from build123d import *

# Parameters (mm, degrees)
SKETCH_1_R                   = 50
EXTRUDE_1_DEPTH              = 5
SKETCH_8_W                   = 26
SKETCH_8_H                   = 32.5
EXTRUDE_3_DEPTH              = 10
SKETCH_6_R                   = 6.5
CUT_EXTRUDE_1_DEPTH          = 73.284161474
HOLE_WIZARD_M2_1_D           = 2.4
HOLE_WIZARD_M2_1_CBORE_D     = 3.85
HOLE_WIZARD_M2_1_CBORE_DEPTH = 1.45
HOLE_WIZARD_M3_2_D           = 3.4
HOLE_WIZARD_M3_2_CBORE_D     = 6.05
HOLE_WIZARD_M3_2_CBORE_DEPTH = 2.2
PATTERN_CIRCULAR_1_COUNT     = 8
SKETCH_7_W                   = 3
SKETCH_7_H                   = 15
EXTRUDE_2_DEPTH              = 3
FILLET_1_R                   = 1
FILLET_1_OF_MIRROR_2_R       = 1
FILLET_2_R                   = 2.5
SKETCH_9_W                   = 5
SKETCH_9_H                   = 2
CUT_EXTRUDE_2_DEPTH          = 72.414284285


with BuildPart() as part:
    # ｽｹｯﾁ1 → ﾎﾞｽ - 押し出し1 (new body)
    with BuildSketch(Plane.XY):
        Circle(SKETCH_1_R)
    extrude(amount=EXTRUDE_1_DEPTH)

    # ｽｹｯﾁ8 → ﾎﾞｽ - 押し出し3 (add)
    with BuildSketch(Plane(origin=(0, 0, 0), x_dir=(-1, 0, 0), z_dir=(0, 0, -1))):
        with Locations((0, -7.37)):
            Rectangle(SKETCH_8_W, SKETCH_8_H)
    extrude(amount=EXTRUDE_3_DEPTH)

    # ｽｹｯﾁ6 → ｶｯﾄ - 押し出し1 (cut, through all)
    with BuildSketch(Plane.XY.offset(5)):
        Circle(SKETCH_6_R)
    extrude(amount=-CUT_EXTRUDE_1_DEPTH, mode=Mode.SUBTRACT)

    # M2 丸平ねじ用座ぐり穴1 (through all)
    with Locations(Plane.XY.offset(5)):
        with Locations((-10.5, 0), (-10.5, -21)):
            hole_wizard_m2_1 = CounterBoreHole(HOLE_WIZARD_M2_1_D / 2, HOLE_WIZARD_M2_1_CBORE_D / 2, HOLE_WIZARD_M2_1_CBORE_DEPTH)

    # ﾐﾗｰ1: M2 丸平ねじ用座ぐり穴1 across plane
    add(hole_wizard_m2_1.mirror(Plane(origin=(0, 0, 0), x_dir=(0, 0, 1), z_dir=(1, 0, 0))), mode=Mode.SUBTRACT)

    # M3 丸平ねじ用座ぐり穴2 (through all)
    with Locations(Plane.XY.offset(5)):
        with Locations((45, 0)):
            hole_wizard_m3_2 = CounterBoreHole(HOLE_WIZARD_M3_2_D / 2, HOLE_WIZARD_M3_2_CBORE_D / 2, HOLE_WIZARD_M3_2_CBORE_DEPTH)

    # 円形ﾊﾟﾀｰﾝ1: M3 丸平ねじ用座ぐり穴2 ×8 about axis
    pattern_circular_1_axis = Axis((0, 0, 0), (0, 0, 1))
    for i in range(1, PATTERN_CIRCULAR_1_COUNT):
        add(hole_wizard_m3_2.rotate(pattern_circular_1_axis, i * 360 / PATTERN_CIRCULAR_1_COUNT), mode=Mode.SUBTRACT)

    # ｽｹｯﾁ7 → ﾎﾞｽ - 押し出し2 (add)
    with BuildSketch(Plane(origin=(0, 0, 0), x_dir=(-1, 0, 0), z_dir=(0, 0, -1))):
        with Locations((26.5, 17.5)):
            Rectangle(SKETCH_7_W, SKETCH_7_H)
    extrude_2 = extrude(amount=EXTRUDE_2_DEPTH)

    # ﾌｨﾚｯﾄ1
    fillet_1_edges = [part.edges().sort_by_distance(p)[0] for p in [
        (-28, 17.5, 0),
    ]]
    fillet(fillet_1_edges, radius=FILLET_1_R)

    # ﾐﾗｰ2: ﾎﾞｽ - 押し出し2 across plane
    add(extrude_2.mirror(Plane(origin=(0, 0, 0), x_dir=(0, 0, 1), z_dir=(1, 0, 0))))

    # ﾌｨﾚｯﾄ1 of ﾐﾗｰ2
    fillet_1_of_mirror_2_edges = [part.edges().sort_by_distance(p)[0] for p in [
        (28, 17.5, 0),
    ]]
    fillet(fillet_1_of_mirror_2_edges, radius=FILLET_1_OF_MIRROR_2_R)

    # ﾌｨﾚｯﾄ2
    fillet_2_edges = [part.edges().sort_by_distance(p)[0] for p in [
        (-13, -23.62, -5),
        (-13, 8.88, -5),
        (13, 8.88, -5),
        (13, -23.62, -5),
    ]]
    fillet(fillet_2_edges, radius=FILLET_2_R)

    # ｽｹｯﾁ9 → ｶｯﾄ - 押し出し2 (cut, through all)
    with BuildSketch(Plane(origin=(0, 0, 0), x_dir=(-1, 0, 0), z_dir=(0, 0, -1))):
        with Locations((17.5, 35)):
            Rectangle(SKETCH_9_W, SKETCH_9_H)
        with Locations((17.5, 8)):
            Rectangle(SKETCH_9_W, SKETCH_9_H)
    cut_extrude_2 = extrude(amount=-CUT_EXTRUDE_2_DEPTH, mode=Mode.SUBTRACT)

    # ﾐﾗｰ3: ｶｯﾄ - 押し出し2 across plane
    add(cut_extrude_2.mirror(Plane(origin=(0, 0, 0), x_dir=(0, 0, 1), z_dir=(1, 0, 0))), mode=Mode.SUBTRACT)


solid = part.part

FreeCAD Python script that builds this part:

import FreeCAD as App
import Part
import Sketcher

V = App.Vector
Q = App.Units.Quantity


def edges_at(feature, points):
    """Names of the edges that pass closest to the given points."""
    edges = feature.Shape.Edges
    near = lambda p: min(range(len(edges)), key=lambda i: edges[i].distToShape(Part.Vertex(*p))[0])
    return sorted({f"Edge{near(p) + 1}" for p in points})


def add_polygon(sketch, points):
    """Adds a closed chain of lines whose ends are joined by coincident constraints."""
    first, n = sketch.GeometryCount, len(points)
    for a, b in zip(points, points[1:] + points[:1]):
        sketch.addGeometry(Part.LineSegment(App.Vector(*a, 0), App.Vector(*b, 0)), False)
    for i in range(n):
        sketch.addConstraint(Sketcher.Constraint("Coincident", first + i, 2, first + (i + 1) % n, 1))

doc = App.newDocument("Part")
body = doc.addObject("PartDesign::Body", "Body")

# Sketch on XY plane
sketch1 = doc.addObject("Sketcher::SketchObject", "Sketch")
body.addObject(sketch1)
sketch1.AttachmentSupport = (doc.XY_Plane, [""])
sketch1.MapMode = "FlatFace"
sketch1.addGeometry(Part.Circle(V(0, 0, 0), V(0, 0, 1), 50), False)
sketch1.addConstraint([
    Sketcher.Constraint("Coincident", 0, 3, -1, 1),
    Sketcher.Constraint("Diameter", 0, Q("100 mm")),
])
pad1 = doc.addObject("PartDesign::Pad", "Pad")
body.addObject(pad1)
pad1.Profile = sketch1
pad1.Length = 5

# Sketch on XY plane
sketch2 = doc.addObject("Sketcher::SketchObject", "Sketch001")
body.addObject(sketch2)
sketch2.AttachmentSupport = (doc.XY_Plane, [""])
sketch2.MapMode = "FlatFace"
add_polygon(sketch2, [(13, 9), (13, -24), (-13, -24), (-13, 9)])  # lines 0-3
sketch2.addConstraint([
    Sketcher.Constraint("Vertical", 0),
    Sketcher.Constraint("Horizontal", 1),
    Sketcher.Constraint("Vertical", 2),
    Sketcher.Constraint("Horizontal", 3),
    Sketcher.Constraint("DistanceX", 1, 2, 1, 1, Q("26 mm")),
    Sketcher.Constraint("DistanceY", 0, 2, 0, 1, Q("32.5 mm")),
    Sketcher.Constraint("DistanceX", -1, 1, 0, 2, Q("13 mm")),
    Sketcher.Constraint("DistanceY", 0, 2, -1, 1, Q("23.62 mm")),
])
pad2 = doc.addObject("PartDesign::Pad", "Pad001")
body.addObject(pad2)
pad2.Profile = sketch2
pad2.Length = 10
pad2.Reversed = True

# Sketch on XY plane
sketch3 = doc.addObject("Sketcher::SketchObject", "Sketch002")
body.addObject(sketch3)
sketch3.AttachmentSupport = (doc.XY_Plane, [""])
sketch3.MapMode = "FlatFace"
sketch3.AttachmentOffset = App.Placement(V(0, 0, 5), App.Rotation())
sketch3.addGeometry(Part.Circle(V(0, 0, 0), V(0, 0, 1), 6), False)
sketch3.addConstraint([
    Sketcher.Constraint("Coincident", 0, 3, -1, 1),
    Sketcher.Constraint("Diameter", 0, Q("13 mm")),
])
pocket1 = doc.addObject("PartDesign::Pocket", "Pocket")
body.addObject(pocket1)
pocket1.Profile = sketch3
pocket1.Type = "ThroughAll"

# Sketch on XY plane
sketch4 = doc.addObject("Sketcher::SketchObject", "Sketch003")
body.addObject(sketch4)
sketch4.AttachmentSupport = (doc.XY_Plane, [""])
sketch4.MapMode = "FlatFace"
sketch4.AttachmentOffset = App.Placement(V(0, 0, 5), App.Rotation())
sketch4.addGeometry([
    Part.Circle(V(-10.5, 0, 0), V(0, 0, 1), 1.2),
    Part.Circle(V(-10.5, -21, 0), V(0, 0, 1), 1.2),
], False)
sketch4.addConstraint([
    Sketcher.Constraint("Equal", 0, 1),
    Sketcher.Constraint("PointOnObject", 0, 3, -1),
    Sketcher.Constraint("Vertical", 0, 3, 1, 3),
    Sketcher.Constraint("Diameter", 0, Q("2.4 mm")),
    Sketcher.Constraint("DistanceY", 1, 3, -1, 1, Q("21 mm")),
    Sketcher.Constraint("DistanceX", 0, 3, -1, 1, Q("10.5 mm")),
])
doc.recompute()
hole = doc.addObject("PartDesign::Hole", "Hole")
body.addObject(hole)
hole.Profile = sketch4
hole.ThreadType = "None"
hole.Diameter = 2.4
hole.DepthType = "ThroughAll"
hole.HoleCutType = "Counterbore"
hole.HoleCutDiameter = 3.85
hole.HoleCutDepth = 1.45
doc.recompute()

mirrored = doc.addObject("PartDesign::Mirrored", "Mirrored")
body.addObject(mirrored)
mirrored.Originals = [hole]
mirrored.MirrorPlane = (doc.YZ_Plane, [""])
body.Tip = mirrored

# Sketch on XY plane
sketch5 = doc.addObject("Sketcher::SketchObject", "Sketch004")
body.addObject(sketch5)
sketch5.AttachmentSupport = (doc.XY_Plane, [""])
sketch5.MapMode = "FlatFace"
sketch5.AttachmentOffset = App.Placement(V(0, 0, 5), App.Rotation())
sketch5.addGeometry(Part.Circle(V(45, 0, 0), V(0, 0, 1), 1.7), False)
sketch5.addConstraint([
    Sketcher.Constraint("PointOnObject", 0, 3, -1),
    Sketcher.Constraint("Diameter", 0, Q("3.4 mm")),
    Sketcher.Constraint("DistanceX", -1, 1, 0, 3, Q("45 mm")),
])
doc.recompute()
hole2 = doc.addObject("PartDesign::Hole", "Hole001")
body.addObject(hole2)
hole2.Profile = sketch5
hole2.ThreadType = "None"
hole2.Diameter = 3.4
hole2.DepthType = "ThroughAll"
hole2.HoleCutType = "Counterbore"
hole2.HoleCutDiameter = 6.05
hole2.HoleCutDepth = 2.2
doc.recompute()

polarpattern = doc.addObject("PartDesign::PolarPattern", "PolarPattern")
body.addObject(polarpattern)
polarpattern.Originals = [hole2]
polarpattern.Axis = (doc.Z_Axis, [""])
polarpattern.Angle = 360
polarpattern.Occurrences = 8
body.Tip = polarpattern

# Sketch on XY plane
sketch6 = doc.addObject("Sketcher::SketchObject", "Sketch005")
body.addObject(sketch6)
sketch6.AttachmentSupport = (doc.XY_Plane, [""])
sketch6.MapMode = "FlatFace"
add_polygon(sketch6, [(-25, 25), (-25, 10), (-28, 10), (-28, 25)])  # lines 0-3
sketch6.addConstraint([
    Sketcher.Constraint("Vertical", 0),
    Sketcher.Constraint("Horizontal", 1),
    Sketcher.Constraint("Vertical", 2),
    Sketcher.Constraint("Horizontal", 3),
    Sketcher.Constraint("DistanceX", 1, 2, 1, 1, Q("3 mm")),
    Sketcher.Constraint("DistanceY", 0, 2, 0, 1, Q("15 mm")),
    Sketcher.Constraint("DistanceX", 0, 2, -1, 1, Q("25 mm")),
    Sketcher.Constraint("DistanceY", -1, 1, 0, 2, Q("10 mm")),
])
pad3 = doc.addObject("PartDesign::Pad", "Pad002")
body.addObject(pad3)
pad3.Profile = sketch6
pad3.Length = 3
pad3.Reversed = True
doc.recompute()

fillet = doc.addObject("PartDesign::Fillet", "Fillet")
body.addObject(fillet)
fillet.Base = (pad3, edges_at(pad3, [(-28, 17.5, 0)]))
fillet.Radius = 1
doc.recompute()

mirrored2 = doc.addObject("PartDesign::Mirrored", "Mirrored001")
body.addObject(mirrored2)
mirrored2.Originals = [pad3]
mirrored2.MirrorPlane = (doc.YZ_Plane, [""])
body.Tip = mirrored2
doc.recompute()

fillet2 = doc.addObject("PartDesign::Fillet", "Fillet001")
body.addObject(fillet2)
fillet2.Base = (mirrored2, edges_at(mirrored2, [(28, 17.5, 0)]))
fillet2.Radius = 1
doc.recompute()

fillet3 = doc.addObject("PartDesign::Fillet", "Fillet002")
body.addObject(fillet3)
fillet3.Base = (fillet2, edges_at(fillet2, [
    (-13, -23.62, -5),
    (-13, 8.88, -5),
    (13, 8.88, -5),
    (13, -23.62, -5),
]))
fillet3.Radius = 2.5

# Sketch on XY plane
sketch7 = doc.addObject("Sketcher::SketchObject", "Sketch006")
body.addObject(sketch7)
sketch7.AttachmentSupport = (doc.XY_Plane, [""])
sketch7.MapMode = "FlatFace"
add_polygon(sketch7, [(-15, 36), (-15, 34), (-20, 34), (-20, 36)])  # lines 0-3
add_polygon(sketch7, [(-15, 9), (-15, 7), (-20, 7), (-20, 9)])  # lines 4-7
sketch7.addConstraint([
    Sketcher.Constraint("Vertical", 0),
    Sketcher.Constraint("Horizontal", 1),
    Sketcher.Constraint("Vertical", 2),
    Sketcher.Constraint("Horizontal", 3),
    Sketcher.Constraint("Vertical", 4),
    Sketcher.Constraint("Horizontal", 5),
    Sketcher.Constraint("Vertical", 6),
    Sketcher.Constraint("Horizontal", 7),
    Sketcher.Constraint("Vertical", 3, 2, 4, 2),
    Sketcher.Constraint("Vertical", 2, 2, 5, 2),
    Sketcher.Constraint("Equal", 2, 4),
    Sketcher.Constraint("DistanceX", 1, 2, 1, 1, Q("5 mm")),
    Sketcher.Constraint("DistanceY", 0, 2, 0, 1, Q("2 mm")),
    Sketcher.Constraint("DistanceX", 0, 2, -1, 1, Q("15 mm")),
    Sketcher.Constraint("DistanceY", -1, 1, 0, 2, Q("34 mm")),
    Sketcher.Constraint("DistanceY", -1, 1, 4, 2, Q("7 mm")),
])
pocket2 = doc.addObject("PartDesign::Pocket", "Pocket001")
body.addObject(pocket2)
pocket2.Profile = sketch7
pocket2.Type = "ThroughAll"
pocket2.Reversed = True
doc.recompute()

mirrored3 = doc.addObject("PartDesign::Mirrored", "Mirrored002")
body.addObject(mirrored3)
mirrored3.Originals = [pocket2]
mirrored3.MirrorPlane = (doc.YZ_Plane, [""])
body.Tip = mirrored3

doc.recompute()
